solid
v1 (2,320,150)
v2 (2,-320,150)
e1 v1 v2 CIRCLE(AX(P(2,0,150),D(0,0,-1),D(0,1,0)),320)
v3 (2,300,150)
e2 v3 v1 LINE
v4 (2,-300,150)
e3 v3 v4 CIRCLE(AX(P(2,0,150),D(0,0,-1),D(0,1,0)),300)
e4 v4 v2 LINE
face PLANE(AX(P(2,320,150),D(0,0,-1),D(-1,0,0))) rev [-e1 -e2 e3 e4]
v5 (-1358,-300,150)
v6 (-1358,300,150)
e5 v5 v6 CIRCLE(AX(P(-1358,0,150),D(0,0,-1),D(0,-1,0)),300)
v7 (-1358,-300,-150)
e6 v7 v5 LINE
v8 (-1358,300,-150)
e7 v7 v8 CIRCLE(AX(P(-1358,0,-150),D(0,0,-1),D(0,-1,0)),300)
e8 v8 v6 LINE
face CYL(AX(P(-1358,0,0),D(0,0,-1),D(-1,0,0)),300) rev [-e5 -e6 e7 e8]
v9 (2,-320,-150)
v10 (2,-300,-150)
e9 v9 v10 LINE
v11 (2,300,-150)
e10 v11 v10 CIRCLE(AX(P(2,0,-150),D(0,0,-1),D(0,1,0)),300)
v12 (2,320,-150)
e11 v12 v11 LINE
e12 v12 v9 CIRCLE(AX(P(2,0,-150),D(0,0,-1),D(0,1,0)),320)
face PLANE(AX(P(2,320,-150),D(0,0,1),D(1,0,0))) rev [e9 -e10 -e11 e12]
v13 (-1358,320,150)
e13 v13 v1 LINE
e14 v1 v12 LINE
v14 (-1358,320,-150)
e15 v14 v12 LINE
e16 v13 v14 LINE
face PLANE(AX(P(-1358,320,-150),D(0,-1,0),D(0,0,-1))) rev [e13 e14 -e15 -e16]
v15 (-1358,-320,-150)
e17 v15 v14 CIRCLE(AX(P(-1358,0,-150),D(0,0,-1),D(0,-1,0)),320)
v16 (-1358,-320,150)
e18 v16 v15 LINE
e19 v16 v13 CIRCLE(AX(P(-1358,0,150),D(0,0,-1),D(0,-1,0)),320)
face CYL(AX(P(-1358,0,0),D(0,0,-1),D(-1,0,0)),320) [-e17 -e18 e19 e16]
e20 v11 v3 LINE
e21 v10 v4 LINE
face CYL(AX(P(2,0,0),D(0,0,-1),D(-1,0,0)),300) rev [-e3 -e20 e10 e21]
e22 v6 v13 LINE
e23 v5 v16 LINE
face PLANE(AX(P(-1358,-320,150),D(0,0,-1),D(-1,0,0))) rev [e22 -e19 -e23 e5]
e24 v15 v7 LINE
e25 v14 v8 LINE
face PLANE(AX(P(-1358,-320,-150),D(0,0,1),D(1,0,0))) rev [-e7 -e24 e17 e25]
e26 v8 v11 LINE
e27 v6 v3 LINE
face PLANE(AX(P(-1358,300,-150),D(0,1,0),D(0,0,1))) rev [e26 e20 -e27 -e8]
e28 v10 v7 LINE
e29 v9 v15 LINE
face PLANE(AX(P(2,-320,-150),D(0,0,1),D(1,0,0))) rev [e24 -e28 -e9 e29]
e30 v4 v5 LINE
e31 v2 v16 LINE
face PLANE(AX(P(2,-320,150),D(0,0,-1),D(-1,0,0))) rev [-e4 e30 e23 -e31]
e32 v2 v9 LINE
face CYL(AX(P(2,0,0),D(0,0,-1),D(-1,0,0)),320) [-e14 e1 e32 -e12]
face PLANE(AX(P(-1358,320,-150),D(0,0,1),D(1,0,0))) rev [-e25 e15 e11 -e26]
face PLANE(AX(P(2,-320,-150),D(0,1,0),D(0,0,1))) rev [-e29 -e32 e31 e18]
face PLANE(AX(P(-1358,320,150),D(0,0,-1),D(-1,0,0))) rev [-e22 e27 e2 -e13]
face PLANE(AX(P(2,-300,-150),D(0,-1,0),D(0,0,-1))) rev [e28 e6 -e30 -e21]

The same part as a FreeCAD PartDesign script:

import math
import FreeCAD as App
import Part
import Sketcher

doc = App.newDocument("Part")
body = doc.addObject("PartDesign::Body", "Body")

# Sketch on YZ plane
sketch1 = body.newObject("Sketcher::SketchObject", "Sketch")
sketch1.AttachmentSupport = (doc.getObject("YZ_Plane"), [""])
sketch1.MapMode = "FlatFace"
sketch1.AttachmentOffset = App.Placement(App.Vector(0, 0, 2), App.Rotation())
sketch1.addGeometry([
    Part.LineSegment(App.Vector(320, 150, 0), App.Vector(320, -150, 0)),
    Part.LineSegment(App.Vector(320, -150, 0), App.Vector(300, -150, 0)),
    Part.LineSegment(App.Vector(300, -150, 0), App.Vector(300, 150, 0)),
    Part.LineSegment(App.Vector(300, 150, 0), App.Vector(320, 150, 0)),
], False)
sketch1.addConstraint([
    Sketcher.Constraint("Coincident", 0, 2, 1, 1),
    Sketcher.Constraint("Coincident", 1, 2, 2, 1),
    Sketcher.Constraint("Coincident", 2, 2, 3, 1),
    Sketcher.Constraint("Coincident", 3, 2, 0, 1),
    Sketcher.Constraint("Vertical", 0),
    Sketcher.Constraint("Horizontal", 1),
    Sketcher.Constraint("Vertical", 2),
    Sketcher.Constraint("Horizontal", 3),
    Sketcher.Constraint("DistanceX", 1, 2, 1, 1, 20.0),
    Sketcher.Constraint("DistanceY", 0, 2, 0, 1, 300.0),
    Sketcher.Constraint("DistanceX", -1, 1, 0, 2, 320.0),
    Sketcher.Constraint("DistanceY", 0, 2, -1, 1, 150.0),
])

# Sketch on XY plane
sketch2 = body.newObject("Sketcher::SketchObject", "Sketch001")
sketch2.AttachmentSupport = (doc.getObject("XY_Plane"), [""])
sketch2.MapMode = "FlatFace"
sketch2.addGeometry([
    Part.LineSegment(App.Vector(2, -300, 0), App.Vector(-1358, -300, 0)),
    Part.ArcOfCircle(Part.Circle(App.Vector(-1358, 0, 0), App.Vector(0, 0, 1), 300), math.radians(90), math.radians(270)),
    Part.LineSegment(App.Vector(-1358, 300, 0), App.Vector(2, 300, 0)),
    Part.ArcOfCircle(Part.Circle(App.Vector(2, 0, 0), App.Vector(0, 0, 1), 300), math.radians(-90), math.radians(90)),
], False)
sketch2.addConstraint([
    Sketcher.Constraint("Tangent", 0, 2, 1, 2),
    Sketcher.Constraint("Tangent", 1, 1, 2, 1),
    Sketcher.Constraint("Tangent", 2, 2, 3, 2),
    Sketcher.Constraint("Tangent", 3, 1, 0, 1),
    Sketcher.Constraint("Horizontal", 0),
    Sketcher.Constraint("Horizontal", 2),
    Sketcher.Constraint("PointOnObject", 1, 3, -1),
    Sketcher.Constraint("Radius", 1, 300.0),
    Sketcher.Constraint("DistanceX", 0, 2, 0, 1, 1360.0),
    Sketcher.Constraint("DistanceX", 1, 3, -1, 1, 1358.0),
])
doc.recompute()

additivepipe = body.newObject("PartDesign::AdditivePipe", "AdditivePipe")
additivepipe.Profile = sketch1
additivepipe.Spine = (sketch2, ["Edge1", "Edge2", "Edge3", "Edge4"])

doc.recompute()
